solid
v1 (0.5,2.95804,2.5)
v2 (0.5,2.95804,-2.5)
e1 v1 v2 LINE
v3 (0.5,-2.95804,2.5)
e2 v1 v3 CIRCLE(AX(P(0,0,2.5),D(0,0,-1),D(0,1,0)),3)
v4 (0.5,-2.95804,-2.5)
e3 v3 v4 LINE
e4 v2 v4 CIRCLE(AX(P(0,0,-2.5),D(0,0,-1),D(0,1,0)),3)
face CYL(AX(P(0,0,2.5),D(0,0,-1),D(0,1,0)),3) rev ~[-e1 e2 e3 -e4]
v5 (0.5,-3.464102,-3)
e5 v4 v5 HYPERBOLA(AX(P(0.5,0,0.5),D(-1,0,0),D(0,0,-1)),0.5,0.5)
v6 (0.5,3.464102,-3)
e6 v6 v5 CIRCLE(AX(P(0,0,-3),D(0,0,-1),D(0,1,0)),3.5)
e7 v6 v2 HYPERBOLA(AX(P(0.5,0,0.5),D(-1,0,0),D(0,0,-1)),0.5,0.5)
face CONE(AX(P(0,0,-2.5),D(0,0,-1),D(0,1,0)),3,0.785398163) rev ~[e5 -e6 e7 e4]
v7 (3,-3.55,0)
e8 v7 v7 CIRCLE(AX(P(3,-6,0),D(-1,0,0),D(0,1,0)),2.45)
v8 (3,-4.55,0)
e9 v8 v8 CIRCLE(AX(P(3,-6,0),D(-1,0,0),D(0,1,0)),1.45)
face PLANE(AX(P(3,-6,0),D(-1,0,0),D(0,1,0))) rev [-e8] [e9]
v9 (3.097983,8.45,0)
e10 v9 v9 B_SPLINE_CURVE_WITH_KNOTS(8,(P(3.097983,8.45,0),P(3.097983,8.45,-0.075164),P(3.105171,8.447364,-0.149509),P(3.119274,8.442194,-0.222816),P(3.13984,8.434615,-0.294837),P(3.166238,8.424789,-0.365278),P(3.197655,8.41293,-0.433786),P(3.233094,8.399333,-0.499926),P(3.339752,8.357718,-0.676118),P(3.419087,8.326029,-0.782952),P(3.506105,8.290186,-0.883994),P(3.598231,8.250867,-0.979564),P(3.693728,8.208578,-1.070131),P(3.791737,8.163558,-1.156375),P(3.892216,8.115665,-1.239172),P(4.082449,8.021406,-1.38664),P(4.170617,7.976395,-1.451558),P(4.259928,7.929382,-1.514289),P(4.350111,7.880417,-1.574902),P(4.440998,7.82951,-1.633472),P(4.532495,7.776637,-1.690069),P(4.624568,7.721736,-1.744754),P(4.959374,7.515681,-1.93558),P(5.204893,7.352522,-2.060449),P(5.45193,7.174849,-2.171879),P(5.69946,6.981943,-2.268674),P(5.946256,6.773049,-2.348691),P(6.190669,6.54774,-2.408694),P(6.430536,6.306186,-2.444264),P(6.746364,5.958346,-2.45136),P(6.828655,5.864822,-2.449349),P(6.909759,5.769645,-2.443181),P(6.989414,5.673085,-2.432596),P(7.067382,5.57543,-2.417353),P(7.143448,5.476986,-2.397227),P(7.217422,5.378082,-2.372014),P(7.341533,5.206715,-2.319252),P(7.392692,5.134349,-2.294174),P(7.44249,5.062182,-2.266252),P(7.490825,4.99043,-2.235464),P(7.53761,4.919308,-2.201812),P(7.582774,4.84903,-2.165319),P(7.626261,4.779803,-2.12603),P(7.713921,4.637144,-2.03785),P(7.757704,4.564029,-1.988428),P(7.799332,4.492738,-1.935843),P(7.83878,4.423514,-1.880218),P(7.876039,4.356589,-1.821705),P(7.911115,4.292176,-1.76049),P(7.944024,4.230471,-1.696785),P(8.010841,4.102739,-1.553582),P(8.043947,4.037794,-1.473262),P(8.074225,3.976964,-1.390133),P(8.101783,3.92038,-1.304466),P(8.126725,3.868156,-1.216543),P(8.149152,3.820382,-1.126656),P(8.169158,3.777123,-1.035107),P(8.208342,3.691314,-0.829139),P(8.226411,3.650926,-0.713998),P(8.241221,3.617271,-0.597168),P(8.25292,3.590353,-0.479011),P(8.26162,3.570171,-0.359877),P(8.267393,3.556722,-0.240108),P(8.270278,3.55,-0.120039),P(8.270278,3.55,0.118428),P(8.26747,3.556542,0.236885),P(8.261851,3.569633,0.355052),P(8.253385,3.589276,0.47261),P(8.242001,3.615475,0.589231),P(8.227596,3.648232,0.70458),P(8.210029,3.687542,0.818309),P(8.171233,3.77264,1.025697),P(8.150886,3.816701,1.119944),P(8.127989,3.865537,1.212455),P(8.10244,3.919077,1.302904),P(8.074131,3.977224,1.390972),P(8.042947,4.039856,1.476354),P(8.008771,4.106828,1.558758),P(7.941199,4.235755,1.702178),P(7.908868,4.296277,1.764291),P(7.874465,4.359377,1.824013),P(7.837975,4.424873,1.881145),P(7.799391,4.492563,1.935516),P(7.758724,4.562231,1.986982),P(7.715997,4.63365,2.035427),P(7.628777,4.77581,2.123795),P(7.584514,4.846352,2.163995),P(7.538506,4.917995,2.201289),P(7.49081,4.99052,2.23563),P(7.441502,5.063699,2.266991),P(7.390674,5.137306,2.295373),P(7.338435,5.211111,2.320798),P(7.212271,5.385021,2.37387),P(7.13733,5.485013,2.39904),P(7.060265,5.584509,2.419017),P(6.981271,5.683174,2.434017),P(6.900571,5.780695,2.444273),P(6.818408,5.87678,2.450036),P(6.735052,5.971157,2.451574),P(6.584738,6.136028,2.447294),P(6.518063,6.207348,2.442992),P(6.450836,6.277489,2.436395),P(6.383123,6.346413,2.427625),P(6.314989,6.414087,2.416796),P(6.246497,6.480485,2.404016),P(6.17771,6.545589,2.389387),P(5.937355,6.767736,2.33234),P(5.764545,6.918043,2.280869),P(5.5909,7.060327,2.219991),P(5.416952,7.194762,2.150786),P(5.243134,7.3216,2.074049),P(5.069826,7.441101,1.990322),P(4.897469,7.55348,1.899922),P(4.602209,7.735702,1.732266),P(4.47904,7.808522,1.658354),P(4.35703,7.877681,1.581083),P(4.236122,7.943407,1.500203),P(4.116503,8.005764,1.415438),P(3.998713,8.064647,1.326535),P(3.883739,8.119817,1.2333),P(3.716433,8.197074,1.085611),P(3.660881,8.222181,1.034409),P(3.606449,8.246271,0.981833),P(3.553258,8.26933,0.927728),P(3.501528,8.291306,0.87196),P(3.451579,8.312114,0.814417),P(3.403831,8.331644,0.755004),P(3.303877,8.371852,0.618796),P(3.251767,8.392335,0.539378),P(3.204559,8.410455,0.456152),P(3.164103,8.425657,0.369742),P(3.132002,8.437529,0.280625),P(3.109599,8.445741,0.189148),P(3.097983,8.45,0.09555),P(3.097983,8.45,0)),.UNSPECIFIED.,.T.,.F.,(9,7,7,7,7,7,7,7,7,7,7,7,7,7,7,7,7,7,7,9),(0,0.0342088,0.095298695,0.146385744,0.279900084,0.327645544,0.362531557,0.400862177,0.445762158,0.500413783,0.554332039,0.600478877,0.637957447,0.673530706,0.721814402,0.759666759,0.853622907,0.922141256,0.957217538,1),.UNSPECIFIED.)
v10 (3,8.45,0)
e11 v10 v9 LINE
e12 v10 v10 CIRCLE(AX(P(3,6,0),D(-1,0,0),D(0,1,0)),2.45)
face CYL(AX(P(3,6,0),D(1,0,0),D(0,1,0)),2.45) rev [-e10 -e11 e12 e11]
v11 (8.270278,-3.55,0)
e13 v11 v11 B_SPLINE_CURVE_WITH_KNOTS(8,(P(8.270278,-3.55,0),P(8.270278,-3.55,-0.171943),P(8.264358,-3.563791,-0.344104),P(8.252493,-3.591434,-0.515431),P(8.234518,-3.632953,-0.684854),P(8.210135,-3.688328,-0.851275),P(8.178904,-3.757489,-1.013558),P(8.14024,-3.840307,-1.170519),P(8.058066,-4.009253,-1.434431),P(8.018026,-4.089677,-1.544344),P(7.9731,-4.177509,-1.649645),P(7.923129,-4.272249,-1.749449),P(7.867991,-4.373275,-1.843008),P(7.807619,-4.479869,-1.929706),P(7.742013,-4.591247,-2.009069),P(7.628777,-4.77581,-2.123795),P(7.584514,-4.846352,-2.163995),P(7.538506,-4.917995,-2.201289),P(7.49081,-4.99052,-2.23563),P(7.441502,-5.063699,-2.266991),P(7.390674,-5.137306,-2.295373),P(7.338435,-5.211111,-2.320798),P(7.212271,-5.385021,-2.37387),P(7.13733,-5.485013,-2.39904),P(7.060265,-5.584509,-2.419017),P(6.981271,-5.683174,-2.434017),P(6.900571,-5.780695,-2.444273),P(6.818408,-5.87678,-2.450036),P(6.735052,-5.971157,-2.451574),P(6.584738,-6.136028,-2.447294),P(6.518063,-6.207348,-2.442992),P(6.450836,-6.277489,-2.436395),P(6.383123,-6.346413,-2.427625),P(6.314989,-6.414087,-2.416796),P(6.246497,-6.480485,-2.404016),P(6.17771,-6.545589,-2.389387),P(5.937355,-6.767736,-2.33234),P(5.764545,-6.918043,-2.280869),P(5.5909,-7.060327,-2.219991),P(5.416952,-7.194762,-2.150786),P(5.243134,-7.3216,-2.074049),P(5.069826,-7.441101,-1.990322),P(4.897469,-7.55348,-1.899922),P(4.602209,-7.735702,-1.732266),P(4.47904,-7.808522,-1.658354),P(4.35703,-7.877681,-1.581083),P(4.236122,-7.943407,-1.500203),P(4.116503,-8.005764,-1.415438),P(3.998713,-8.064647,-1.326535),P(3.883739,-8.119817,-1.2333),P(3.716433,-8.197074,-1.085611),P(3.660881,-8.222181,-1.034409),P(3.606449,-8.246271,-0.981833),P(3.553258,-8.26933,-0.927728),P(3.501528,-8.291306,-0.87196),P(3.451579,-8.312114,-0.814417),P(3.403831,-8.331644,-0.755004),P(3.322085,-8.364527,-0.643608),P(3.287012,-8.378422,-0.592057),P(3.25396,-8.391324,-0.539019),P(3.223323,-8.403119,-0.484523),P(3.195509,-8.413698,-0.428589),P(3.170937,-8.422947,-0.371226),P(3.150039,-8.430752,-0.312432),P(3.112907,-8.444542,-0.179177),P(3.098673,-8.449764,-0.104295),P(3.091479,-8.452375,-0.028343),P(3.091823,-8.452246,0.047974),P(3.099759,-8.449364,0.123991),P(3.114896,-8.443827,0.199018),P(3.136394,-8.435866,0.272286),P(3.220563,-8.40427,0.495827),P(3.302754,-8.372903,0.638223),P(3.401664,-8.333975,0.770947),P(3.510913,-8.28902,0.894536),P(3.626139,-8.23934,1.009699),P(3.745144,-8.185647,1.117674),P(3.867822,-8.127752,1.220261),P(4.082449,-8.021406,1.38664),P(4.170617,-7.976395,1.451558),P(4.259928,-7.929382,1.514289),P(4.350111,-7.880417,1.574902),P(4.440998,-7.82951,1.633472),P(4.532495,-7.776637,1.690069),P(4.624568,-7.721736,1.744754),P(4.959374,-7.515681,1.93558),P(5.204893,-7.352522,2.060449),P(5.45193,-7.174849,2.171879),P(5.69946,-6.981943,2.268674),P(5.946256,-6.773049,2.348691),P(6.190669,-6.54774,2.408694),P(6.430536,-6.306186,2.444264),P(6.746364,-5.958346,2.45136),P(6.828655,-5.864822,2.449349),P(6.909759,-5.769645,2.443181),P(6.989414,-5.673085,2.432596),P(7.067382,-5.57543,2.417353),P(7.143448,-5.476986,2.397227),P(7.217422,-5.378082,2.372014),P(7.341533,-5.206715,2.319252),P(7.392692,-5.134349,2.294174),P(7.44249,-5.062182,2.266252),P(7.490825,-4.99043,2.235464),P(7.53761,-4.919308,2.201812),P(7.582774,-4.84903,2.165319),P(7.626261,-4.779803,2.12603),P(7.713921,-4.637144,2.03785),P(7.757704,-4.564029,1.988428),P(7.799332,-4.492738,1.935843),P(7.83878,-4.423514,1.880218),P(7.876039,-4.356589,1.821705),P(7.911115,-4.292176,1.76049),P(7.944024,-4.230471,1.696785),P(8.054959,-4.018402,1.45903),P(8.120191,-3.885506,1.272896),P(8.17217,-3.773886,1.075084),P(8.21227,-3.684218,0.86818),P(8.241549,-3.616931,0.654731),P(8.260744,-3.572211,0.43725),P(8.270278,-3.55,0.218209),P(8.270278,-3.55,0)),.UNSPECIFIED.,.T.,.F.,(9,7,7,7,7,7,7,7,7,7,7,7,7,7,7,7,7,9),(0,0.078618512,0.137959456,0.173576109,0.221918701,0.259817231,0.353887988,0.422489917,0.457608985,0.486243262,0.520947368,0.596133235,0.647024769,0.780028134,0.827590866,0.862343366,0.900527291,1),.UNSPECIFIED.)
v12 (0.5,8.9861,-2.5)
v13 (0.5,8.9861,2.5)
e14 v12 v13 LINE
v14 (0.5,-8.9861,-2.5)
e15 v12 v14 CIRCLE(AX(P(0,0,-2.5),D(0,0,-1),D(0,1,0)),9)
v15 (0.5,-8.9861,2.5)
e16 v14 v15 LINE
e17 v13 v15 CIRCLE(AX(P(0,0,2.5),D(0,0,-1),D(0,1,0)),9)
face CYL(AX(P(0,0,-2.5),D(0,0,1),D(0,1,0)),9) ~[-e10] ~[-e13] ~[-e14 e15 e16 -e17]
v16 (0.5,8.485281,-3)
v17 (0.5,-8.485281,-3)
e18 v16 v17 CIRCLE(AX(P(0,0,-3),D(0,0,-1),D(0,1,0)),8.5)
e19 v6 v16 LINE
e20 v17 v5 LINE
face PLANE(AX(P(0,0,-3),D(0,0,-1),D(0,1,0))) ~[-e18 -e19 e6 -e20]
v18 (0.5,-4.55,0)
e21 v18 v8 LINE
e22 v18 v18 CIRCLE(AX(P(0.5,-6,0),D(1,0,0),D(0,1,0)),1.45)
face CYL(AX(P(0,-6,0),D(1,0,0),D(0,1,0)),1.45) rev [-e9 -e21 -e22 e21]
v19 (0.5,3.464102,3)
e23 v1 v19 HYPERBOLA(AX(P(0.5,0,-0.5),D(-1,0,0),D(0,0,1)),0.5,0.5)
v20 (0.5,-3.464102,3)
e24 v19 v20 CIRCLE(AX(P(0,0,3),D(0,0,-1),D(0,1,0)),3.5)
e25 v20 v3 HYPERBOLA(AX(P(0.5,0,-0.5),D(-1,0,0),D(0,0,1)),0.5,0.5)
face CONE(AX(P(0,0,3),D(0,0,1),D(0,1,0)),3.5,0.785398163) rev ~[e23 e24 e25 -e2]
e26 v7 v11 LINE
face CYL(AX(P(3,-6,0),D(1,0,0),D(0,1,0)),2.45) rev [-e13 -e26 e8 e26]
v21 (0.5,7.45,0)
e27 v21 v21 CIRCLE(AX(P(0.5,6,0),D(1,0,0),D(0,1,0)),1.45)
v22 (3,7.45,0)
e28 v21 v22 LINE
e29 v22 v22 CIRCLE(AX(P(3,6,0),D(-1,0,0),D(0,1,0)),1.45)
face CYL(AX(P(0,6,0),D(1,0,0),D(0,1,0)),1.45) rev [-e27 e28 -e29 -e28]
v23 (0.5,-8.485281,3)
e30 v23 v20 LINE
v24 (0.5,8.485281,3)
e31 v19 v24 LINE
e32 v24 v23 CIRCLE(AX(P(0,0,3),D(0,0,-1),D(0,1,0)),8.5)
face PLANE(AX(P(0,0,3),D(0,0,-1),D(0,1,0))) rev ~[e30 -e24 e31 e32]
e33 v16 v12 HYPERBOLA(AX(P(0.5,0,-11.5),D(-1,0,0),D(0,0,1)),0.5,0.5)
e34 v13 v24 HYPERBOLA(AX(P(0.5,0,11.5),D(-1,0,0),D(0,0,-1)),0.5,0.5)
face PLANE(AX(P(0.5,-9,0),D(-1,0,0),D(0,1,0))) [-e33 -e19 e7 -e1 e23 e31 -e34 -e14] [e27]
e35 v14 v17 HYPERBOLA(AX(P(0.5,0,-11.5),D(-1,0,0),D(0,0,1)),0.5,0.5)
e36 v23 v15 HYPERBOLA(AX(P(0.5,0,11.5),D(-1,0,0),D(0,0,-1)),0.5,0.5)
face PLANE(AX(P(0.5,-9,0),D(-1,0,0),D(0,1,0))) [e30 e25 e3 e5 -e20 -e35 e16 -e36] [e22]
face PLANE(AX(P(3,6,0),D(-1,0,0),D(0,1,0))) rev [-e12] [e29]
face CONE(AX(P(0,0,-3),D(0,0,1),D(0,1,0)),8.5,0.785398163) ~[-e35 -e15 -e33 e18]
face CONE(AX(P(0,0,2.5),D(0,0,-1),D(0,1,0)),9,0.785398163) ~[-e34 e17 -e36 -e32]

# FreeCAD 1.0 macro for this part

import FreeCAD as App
import Part
import Sketcher
Q = App.Units.Quantity

doc = App.newDocument("Part")
body = doc.addObject("PartDesign::Body", "Body")

sketch1 = doc.addObject("Sketcher::SketchObject", "Sketch")
body.addObject(sketch1)
sketch1.AttachmentSupport = (doc.YZ_Plane, [""])
sketch1.MapMode = "FlatFace"
sketch1.addGeometry(Part.LineSegment(App.Vector(9, 2.5, 0), App.Vector(8.5, 3, 0)), False)
sketch1.addGeometry(Part.LineSegment(App.Vector(8.5, 3, 0), App.Vector(3.5, 3, 0)), False)
sketch1.addGeometry(Part.LineSegment(App.Vector(3.5, 3, 0), App.Vector(3, 2.5, 0)), False)
sketch1.addGeometry(Part.LineSegment(App.Vector(3, 2.5, 0), App.Vector(3, -2.5, 0)), False)
sketch1.addGeometry(Part.LineSegment(App.Vector(3, -2.5, 0), App.Vector(3.5, -3, 0)), False)
sketch1.addGeometry(Part.LineSegment(App.Vector(3.5, -3, 0), App.Vector(8.5, -3, 0)), False)
sketch1.addGeometry(Part.LineSegment(App.Vector(8.5, -3, 0), App.Vector(9, -2.5, 0)), False)
sketch1.addGeometry(Part.LineSegment(App.Vector(9, -2.5, 0), App.Vector(9, 2.5, 0)), False)
sketch1.addConstraint(Sketcher.Constraint("Coincident", 0, 2, 1, 1))
sketch1.addConstraint(Sketcher.Constraint("Coincident", 1, 2, 2, 1))
sketch1.addConstraint(Sketcher.Constraint("Coincident", 2, 2, 3, 1))
sketch1.addConstraint(Sketcher.Constraint("Coincident", 3, 2, 4, 1))
sketch1.addConstraint(Sketcher.Constraint("Coincident", 4, 2, 5, 1))
sketch1.addConstraint(Sketcher.Constraint("Coincident", 5, 2, 6, 1))
sketch1.addConstraint(Sketcher.Constraint("Coincident", 6, 2, 7, 1))
sketch1.addConstraint(Sketcher.Constraint("Coincident", 7, 2, 0, 1))
sketch1.addConstraint(Sketcher.Constraint("Horizontal", 1))
sketch1.addConstraint(Sketcher.Constraint("Vertical", 3))
sketch1.addConstraint(Sketcher.Constraint("Horizontal", 5))
sketch1.addConstraint(Sketcher.Constraint("Vertical", 7))
sketch1.addConstraint(Sketcher.Constraint("Symmetric", 1, 2, 4, 2, -1))
sketch1.addConstraint(Sketcher.Constraint("Perpendicular", 0, 2))
sketch1.addConstraint(Sketcher.Constraint("Perpendicular", 2, 4))
sketch1.addConstraint(Sketcher.Constraint("Perpendicular", 4, 6))
sketch1.addConstraint(Sketcher.Constraint("Horizontal", 3, 2, 6, 2))
sketch1.addConstraint(Sketcher.Constraint("Horizontal", 2, 2, 7, 2))
sketch1.addConstraint(Sketcher.Constraint("Vertical", 0, 2, 5, 2))
sketch1.addConstraint(Sketcher.Constraint("Equal", 5, 3))
sketch1.addConstraint(Sketcher.Constraint("DistanceX", 1, 2, 1, 1, Q("5 mm")))
sketch1.addConstraint(Sketcher.Constraint("DistanceY", -1, 1, 0, 2, Q("3 mm")))
sketch1.addConstraint(Sketcher.Constraint("DistanceX", -1, 1, 2, 2, Q("3 mm")))
revolution = doc.addObject("PartDesign::Revolution", "Revolution")
body.addObject(revolution)
revolution.Profile = sketch1
revolution.ReferenceAxis = (sketch1, ["V_Axis"])
revolution.Angle = 180
revolution.Reversed = True

sketch2 = doc.addObject("Sketcher::SketchObject", "Sketch001")
body.addObject(sketch2)
sketch2.AttachmentSupport = (doc.XY_Plane, [""])
sketch2.MapMode = "FlatFace"
sketch2.addGeometry(Part.LineSegment(App.Vector(-0.5, 9, 0), App.Vector(-0.5, -9, 0)), False)
sketch2.addGeometry(Part.LineSegment(App.Vector(-0.5, -9, 0), App.Vector(0.5, -9, 0)), False)
sketch2.addGeometry(Part.LineSegment(App.Vector(0.5, -9, 0), App.Vector(0.5, 9, 0)), False)
sketch2.addGeometry(Part.LineSegment(App.Vector(0.5, 9, 0), App.Vector(-0.5, 9, 0)), False)
sketch2.addConstraint(Sketcher.Constraint("Coincident", 0, 2, 1, 1))
sketch2.addConstraint(Sketcher.Constraint("Coincident", 1, 2, 2, 1))
sketch2.addConstraint(Sketcher.Constraint("Coincident", 2, 2, 3, 1))
sketch2.addConstraint(Sketcher.Constraint("Coincident", 3, 2, 0, 1))
sketch2.addConstraint(Sketcher.Constraint("Vertical", 0))
sketch2.addConstraint(Sketcher.Constraint("Horizontal", 1))
sketch2.addConstraint(Sketcher.Constraint("Vertical", 2))
sketch2.addConstraint(Sketcher.Constraint("Horizontal", 3))
sketch2.addConstraint(Sketcher.Constraint("Symmetric", 0, 2, 2, 2, -1, 1))
sketch2.addConstraint(Sketcher.Constraint("DistanceX", 1, 1, 1, 2, Q("1 mm")))
sketch2.addConstraint(Sketcher.Constraint("DistanceY", 0, 2, 0, 1, Q("18 mm")))
pocket1 = doc.addObject("PartDesign::Pocket", "Pocket")
body.addObject(pocket1)
pocket1.Profile = sketch2
pocket1.Length = 6
pocket1.Midplane = True

sketch3 = doc.addObject("Sketcher::SketchObject", "Sketch002")
body.addObject(sketch3)
sketch3.AttachmentSupport = (doc.XY_Plane, [""])
sketch3.MapMode = "FlatFace"
sketch3.addGeometry(Part.LineSegment(App.Vector(0, -6, 0), App.Vector(9, -6, 0)), False)
sketch3.addGeometry(Part.LineSegment(App.Vector(9, -6, 0), App.Vector(9, -3.55, 0)), False)
sketch3.addGeometry(Part.LineSegment(App.Vector(9, -3.55, 0), App.Vector(3, -3.55, 0)), False)
sketch3.addGeometry(Part.LineSegment(App.Vector(3, -3.55, 0), App.Vector(3, -4.55, 0)), False)
sketch3.addGeometry(Part.LineSegment(App.Vector(3, -4.55, 0), App.Vector(0, -4.55, 0)), False)
sketch3.addGeometry(Part.LineSegment(App.Vector(0, -4.55, 0), App.Vector(0, -6, 0)), False)
sketch3.addGeometry(Part.LineSegment(App.Vector(9, -6, 0), App.Vector(0, -6, 0)), True)
sketch3.addConstraint(Sketcher.Constraint("Coincident", 0, 2, 1, 1))
sketch3.addConstraint(Sketcher.Constraint("Coincident", 1, 2, 2, 1))
sketch3.addConstraint(Sketcher.Constraint("Coincident", 2, 2, 3, 1))
sketch3.addConstraint(Sketcher.Constraint("Coincident", 3, 2, 4, 1))
sketch3.addConstraint(Sketcher.Constraint("Coincident", 4, 2, 5, 1))
sketch3.addConstraint(Sketcher.Constraint("Coincident", 5, 2, 0, 1))
sketch3.addConstraint(Sketcher.Constraint("Horizontal", 0))
sketch3.addConstraint(Sketcher.Constraint("Vertical", 1))
sketch3.addConstraint(Sketcher.Constraint("Horizontal", 2))
sketch3.addConstraint(Sketcher.Constraint("Vertical", 3))
sketch3.addConstraint(Sketcher.Constraint("Horizontal", 4))
sketch3.addConstraint(Sketcher.Constraint("Vertical", 5))
sketch3.addConstraint(Sketcher.Constraint("Horizontal", 6))
sketch3.addConstraint(Sketcher.Constraint("Coincident", 6, 1, 0, 2))
sketch3.addConstraint(Sketcher.Constraint("PointOnObject", 4, 2, -2))
sketch3.addConstraint(Sketcher.Constraint("PointOnObject", 6, 2, -2))
sketch3.addConstraint(Sketcher.Constraint("DistanceX", 0, 1, 0, 2, Q("9 mm")))
sketch3.addConstraint(Sketcher.Constraint("DistanceX", 2, 2, 2, 1, Q("6 mm")))
sketch3.addConstraint(Sketcher.Constraint("DistanceY", 3, 2, 3, 1, Q("1 mm")))
sketch3.addConstraint(Sketcher.Constraint("DistanceY", 0, 2, -1, 1, Q("6 mm")))
sketch3.addConstraint(Sketcher.Constraint("DistanceY", 1, 1, 1, 2, Q("2.45 mm")))
groove = doc.addObject("PartDesign::Groove", "Groove")
body.addObject(groove)
groove.Profile = sketch3
groove.ReferenceAxis = (sketch3, ["Axis0"])
groove.Angle = 360

sketch4 = doc.addObject("Sketcher::SketchObject", "Sketch003")
body.addObject(sketch4)
sketch4.AttachmentSupport = (doc.XY_Plane, [""])
sketch4.MapMode = "FlatFace"
sketch4.addGeometry(Part.LineSegment(App.Vector(0, 6, 0), App.Vector(9, 6, 0)), False)
sketch4.addGeometry(Part.LineSegment(App.Vector(9, 6, 0), App.Vector(9, 8.45, 0)), False)
sketch4.addGeometry(Part.LineSegment(App.Vector(9, 8.45, 0), App.Vector(3, 8.45, 0)), False)
sketch4.addGeometry(Part.LineSegment(App.Vector(3, 8.45, 0), App.Vector(3, 7.45, 0)), False)
sketch4.addGeometry(Part.LineSegment(App.Vector(3, 7.45, 0), App.Vector(0, 7.45, 0)), False)
sketch4.addGeometry(Part.LineSegment(App.Vector(0, 7.45, 0), App.Vector(0, 6, 0)), False)
sketch4.addGeometry(Part.LineSegment(App.Vector(9, 6, 0), App.Vector(0, 6, 0)), True)
sketch4.addConstraint(Sketcher.Constraint("Coincident", 0, 2, 1, 1))
sketch4.addConstraint(Sketcher.Constraint("Coincident", 1, 2, 2, 1))
sketch4.addConstraint(Sketcher.Constraint("Coincident", 2, 2, 3, 1))
sketch4.addConstraint(Sketcher.Constraint("Coincident", 3, 2, 4, 1))
sketch4.addConstraint(Sketcher.Constraint("Coincident", 4, 2, 5, 1))
sketch4.addConstraint(Sketcher.Constraint("Coincident", 5, 2, 0, 1))
sketch4.addConstraint(Sketcher.Constraint("Horizontal", 0))
sketch4.addConstraint(Sketcher.Constraint("Vertical", 1))
sketch4.addConstraint(Sketcher.Constraint("Horizontal", 2))
sketch4.addConstraint(Sketcher.Constraint("Vertical", 3))
sketch4.addConstraint(Sketcher.Constraint("Horizontal", 4))
sketch4.addConstraint(Sketcher.Constraint("Vertical", 5))
sketch4.addConstraint(Sketcher.Constraint("Horizontal", 6))
sketch4.addConstraint(Sketcher.Constraint("Coincident", 6, 1, 0, 2))
sketch4.addConstraint(Sketcher.Constraint("PointOnObject", 4, 2, -2))
sketch4.addConstraint(Sketcher.Constraint("PointOnObject", 6, 2, -2))
sketch4.addConstraint(Sketcher.Constraint("DistanceX", 0, 1, 0, 2, Q("9 mm")))
sketch4.addConstraint(Sketcher.Constraint("DistanceX", 2, 2, 2, 1, Q("6 mm")))
sketch4.addConstraint(Sketcher.Constraint("DistanceY", 3, 2, 3, 1, Q("1 mm")))
sketch4.addConstraint(Sketcher.Constraint("DistanceY", -1, 1, 0, 2, Q("6 mm")))
sketch4.addConstraint(Sketcher.Constraint("DistanceY", 1, 1, 1, 2, Q("2.45 mm")))
groove2 = doc.addObject("PartDesign::Groove", "Groove001")
body.addObject(groove2)
groove2.Profile = sketch4
groove2.ReferenceAxis = (sketch4, ["Axis0"])
groove2.Angle = 360

doc.recompute()
